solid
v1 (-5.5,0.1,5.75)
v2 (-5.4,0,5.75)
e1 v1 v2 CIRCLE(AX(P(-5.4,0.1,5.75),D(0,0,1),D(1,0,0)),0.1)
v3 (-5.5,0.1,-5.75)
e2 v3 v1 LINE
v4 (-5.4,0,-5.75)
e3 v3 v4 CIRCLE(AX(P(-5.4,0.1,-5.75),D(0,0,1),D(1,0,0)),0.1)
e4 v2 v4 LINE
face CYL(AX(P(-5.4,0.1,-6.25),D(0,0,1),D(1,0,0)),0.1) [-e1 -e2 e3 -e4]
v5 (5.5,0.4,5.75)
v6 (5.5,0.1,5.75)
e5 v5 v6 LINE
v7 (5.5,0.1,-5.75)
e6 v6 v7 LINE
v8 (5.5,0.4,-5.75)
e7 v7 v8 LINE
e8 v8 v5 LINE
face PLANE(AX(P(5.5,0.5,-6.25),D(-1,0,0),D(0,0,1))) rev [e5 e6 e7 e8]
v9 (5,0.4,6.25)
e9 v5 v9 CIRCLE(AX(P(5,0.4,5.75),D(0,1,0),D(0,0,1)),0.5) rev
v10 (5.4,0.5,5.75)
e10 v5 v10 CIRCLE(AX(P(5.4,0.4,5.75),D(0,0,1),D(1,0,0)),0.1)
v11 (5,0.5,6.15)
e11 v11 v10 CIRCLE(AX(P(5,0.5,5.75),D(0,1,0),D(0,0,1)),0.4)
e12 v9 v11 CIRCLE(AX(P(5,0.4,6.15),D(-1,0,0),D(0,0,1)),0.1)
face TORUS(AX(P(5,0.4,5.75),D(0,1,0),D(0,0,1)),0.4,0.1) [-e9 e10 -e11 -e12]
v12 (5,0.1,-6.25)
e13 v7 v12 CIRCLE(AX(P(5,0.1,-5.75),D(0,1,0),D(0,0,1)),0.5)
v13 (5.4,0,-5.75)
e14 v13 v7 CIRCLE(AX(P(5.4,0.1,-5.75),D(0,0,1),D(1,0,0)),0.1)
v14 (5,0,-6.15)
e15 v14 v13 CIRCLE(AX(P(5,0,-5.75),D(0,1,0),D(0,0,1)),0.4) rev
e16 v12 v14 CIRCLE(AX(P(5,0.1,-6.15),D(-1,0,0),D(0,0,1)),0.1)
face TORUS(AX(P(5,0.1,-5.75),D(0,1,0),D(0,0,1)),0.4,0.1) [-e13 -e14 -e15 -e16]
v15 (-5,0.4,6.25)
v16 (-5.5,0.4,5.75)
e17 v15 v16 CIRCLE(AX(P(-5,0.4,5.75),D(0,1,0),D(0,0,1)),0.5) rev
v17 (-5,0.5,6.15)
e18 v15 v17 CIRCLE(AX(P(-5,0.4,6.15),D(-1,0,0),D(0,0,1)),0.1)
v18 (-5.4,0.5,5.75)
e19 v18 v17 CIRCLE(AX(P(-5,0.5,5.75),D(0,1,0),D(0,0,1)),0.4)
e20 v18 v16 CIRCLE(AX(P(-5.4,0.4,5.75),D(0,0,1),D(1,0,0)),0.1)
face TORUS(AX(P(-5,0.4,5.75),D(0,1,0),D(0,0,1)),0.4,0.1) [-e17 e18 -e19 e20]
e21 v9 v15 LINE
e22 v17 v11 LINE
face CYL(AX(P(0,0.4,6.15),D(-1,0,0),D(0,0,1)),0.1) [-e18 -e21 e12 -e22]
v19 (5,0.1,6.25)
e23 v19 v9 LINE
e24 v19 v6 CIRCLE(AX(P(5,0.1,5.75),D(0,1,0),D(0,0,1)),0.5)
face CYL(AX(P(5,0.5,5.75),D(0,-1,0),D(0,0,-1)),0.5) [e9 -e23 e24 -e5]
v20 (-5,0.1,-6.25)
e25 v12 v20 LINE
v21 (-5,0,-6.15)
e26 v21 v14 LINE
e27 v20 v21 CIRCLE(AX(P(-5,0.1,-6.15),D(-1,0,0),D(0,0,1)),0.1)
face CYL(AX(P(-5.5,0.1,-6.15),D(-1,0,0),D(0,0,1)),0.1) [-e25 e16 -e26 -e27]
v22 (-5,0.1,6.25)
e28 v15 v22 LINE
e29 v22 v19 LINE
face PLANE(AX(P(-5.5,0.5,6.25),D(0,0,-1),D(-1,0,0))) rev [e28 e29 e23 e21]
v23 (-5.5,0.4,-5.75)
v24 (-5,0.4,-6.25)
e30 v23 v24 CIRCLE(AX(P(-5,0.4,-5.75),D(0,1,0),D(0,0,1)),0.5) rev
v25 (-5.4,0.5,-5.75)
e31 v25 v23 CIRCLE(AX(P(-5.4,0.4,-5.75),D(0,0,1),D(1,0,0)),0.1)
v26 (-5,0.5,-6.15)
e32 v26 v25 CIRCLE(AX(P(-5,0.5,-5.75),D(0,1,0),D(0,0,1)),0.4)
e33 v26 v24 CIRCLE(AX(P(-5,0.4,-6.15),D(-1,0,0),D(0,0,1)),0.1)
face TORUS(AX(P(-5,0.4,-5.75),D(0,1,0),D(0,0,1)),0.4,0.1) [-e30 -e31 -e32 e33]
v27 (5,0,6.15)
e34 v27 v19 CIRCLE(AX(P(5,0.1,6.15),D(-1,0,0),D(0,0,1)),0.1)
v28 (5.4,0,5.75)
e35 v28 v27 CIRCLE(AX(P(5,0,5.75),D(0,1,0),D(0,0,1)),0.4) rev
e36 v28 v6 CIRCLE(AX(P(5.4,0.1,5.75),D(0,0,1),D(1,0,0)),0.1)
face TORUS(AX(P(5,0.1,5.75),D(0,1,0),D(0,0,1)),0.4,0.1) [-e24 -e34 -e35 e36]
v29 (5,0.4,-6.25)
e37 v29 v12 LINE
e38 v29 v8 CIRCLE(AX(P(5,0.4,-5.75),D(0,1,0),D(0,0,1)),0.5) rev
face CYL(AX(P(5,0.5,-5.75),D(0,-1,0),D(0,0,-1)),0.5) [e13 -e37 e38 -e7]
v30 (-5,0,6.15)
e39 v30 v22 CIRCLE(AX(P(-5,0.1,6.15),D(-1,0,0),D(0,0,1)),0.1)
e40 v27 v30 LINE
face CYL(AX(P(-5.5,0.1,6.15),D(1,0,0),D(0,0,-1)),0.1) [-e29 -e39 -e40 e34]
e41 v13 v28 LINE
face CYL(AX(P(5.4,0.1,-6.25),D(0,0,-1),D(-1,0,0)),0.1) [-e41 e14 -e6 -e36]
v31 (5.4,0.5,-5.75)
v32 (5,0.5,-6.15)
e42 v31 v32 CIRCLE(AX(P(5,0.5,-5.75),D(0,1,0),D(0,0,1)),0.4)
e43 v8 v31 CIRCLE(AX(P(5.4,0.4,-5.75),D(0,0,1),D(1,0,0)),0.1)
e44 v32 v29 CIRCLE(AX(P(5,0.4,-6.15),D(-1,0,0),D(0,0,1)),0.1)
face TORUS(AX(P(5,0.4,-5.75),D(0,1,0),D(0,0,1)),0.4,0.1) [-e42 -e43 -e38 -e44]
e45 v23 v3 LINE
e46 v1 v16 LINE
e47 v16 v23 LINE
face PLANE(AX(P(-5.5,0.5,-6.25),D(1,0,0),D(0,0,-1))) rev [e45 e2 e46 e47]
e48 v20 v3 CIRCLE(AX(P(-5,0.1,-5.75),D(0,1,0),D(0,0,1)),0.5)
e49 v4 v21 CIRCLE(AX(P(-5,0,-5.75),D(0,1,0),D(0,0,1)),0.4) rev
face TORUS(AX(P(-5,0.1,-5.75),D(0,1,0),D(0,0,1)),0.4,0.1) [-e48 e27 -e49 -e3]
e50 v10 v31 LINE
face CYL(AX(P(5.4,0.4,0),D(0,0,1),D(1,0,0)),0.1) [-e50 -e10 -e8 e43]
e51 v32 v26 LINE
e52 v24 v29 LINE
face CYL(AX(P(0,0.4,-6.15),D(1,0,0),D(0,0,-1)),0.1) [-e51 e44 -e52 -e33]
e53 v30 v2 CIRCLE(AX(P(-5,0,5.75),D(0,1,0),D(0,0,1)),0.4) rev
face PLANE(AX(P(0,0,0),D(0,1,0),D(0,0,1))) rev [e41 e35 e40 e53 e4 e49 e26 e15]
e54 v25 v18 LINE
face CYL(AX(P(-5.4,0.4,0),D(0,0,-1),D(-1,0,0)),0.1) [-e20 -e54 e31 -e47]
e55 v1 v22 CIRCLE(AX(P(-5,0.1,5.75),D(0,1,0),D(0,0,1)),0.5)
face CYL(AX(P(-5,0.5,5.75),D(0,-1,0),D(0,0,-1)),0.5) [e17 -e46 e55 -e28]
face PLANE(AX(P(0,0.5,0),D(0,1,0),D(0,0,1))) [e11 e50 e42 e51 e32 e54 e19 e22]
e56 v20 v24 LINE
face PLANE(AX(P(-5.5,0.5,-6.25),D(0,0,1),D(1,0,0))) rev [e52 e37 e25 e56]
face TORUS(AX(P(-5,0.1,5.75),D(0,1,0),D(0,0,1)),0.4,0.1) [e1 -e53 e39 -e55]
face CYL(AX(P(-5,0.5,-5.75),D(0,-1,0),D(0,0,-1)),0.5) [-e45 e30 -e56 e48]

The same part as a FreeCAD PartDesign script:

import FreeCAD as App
import Part
import Sketcher
Q = App.Units.Quantity


def edges_at(feature, points):
    """Names of the edges that pass closest to the given points."""
    edges = feature.Shape.Edges
    near = lambda p: min(range(len(edges)), key=lambda i: edges[i].distToShape(Part.Vertex(*p))[0])
    return sorted({f"Edge{near(p) + 1}" for p in points})


def add_polygon(sketch, points):
    """Adds a closed chain of lines whose ends are joined by coincident constraints."""
    first, n = sketch.GeometryCount, len(points)
    for a, b in zip(points, points[1:] + points[:1]):
        sketch.addGeometry(Part.LineSegment(App.Vector(*a, 0), App.Vector(*b, 0)), False)
    for i in range(n):
        sketch.addConstraint(Sketcher.Constraint("Coincident", first + i, 2, first + (i + 1) % n, 1))

doc = App.newDocument("Part")
body = doc.addObject("PartDesign::Body", "Body")

sketch1 = body.newObject("Sketcher::SketchObject", "Sketch")
sketch1.AttachmentSupport = (doc.getObject("XZ_Plane"), [""])
sketch1.MapMode = "FlatFace"
add_polygon(sketch1, [(-6, -6), (-6, 6), (6, 6), (6, -6)])
sketch1.addConstraint(Sketcher.Constraint("Vertical", 0))
sketch1.addConstraint(Sketcher.Constraint("Horizontal", 1))
sketch1.addConstraint(Sketcher.Constraint("Vertical", 2))
sketch1.addConstraint(Sketcher.Constraint("Horizontal", 3))
sketch1.addConstraint(Sketcher.Constraint("Symmetric", 0, 2, 2, 2, -1, 1))
sketch1.addConstraint(Sketcher.Constraint("DistanceX", 1, 1, 1, 2, Q("11 mm")))
sketch1.addConstraint(Sketcher.Constraint("DistanceY", 0, 1, 0, 2, Q("12.5 mm")))
pad1 = body.newObject("PartDesign::Pad", "Pad")
pad1.Profile = sketch1
pad1.Length = 0.5
pad1.Reversed = True
doc.recompute()

fillet = body.newObject("PartDesign::Fillet", "Fillet")
fillet.Base = (pad1, edges_at(pad1, [
    (-5.5, 0.25, -6.25),
    (5.5, 0.25, -6.25),
    (5.5, 0.25, 6.25),
    (-5.5, 0.25, 6.25),
]))
fillet.Radius = 0.5
doc.recompute()

fillet2 = body.newObject("PartDesign::Fillet", "Fillet001")
fillet2.Base = (fillet, edges_at(fillet, [
    (-5.5, 0, 0),
    (-5.5, 0.5, 0),
    (0, 0, -6.25),
    (5.5, 0, 0),
    (0, 0, 6.25),
    (5.354, 0, 6.104),
    (-5.354, 0, 6.104),
    (5.354, 0, -6.104),
    (-5.354, 0, -6.104),
    (0, 0.5, -6.25),
    (0, 0.5, 6.25),
    (5.5, 0.5, 0),
    (5.354, 0.5, 6.104),
    (-5.354, 0.5, 6.104),
    (5.354, 0.5, -6.104),
    (-5.354, 0.5, -6.104),
]))
fillet2.Radius = 0.1

doc.recompute()
